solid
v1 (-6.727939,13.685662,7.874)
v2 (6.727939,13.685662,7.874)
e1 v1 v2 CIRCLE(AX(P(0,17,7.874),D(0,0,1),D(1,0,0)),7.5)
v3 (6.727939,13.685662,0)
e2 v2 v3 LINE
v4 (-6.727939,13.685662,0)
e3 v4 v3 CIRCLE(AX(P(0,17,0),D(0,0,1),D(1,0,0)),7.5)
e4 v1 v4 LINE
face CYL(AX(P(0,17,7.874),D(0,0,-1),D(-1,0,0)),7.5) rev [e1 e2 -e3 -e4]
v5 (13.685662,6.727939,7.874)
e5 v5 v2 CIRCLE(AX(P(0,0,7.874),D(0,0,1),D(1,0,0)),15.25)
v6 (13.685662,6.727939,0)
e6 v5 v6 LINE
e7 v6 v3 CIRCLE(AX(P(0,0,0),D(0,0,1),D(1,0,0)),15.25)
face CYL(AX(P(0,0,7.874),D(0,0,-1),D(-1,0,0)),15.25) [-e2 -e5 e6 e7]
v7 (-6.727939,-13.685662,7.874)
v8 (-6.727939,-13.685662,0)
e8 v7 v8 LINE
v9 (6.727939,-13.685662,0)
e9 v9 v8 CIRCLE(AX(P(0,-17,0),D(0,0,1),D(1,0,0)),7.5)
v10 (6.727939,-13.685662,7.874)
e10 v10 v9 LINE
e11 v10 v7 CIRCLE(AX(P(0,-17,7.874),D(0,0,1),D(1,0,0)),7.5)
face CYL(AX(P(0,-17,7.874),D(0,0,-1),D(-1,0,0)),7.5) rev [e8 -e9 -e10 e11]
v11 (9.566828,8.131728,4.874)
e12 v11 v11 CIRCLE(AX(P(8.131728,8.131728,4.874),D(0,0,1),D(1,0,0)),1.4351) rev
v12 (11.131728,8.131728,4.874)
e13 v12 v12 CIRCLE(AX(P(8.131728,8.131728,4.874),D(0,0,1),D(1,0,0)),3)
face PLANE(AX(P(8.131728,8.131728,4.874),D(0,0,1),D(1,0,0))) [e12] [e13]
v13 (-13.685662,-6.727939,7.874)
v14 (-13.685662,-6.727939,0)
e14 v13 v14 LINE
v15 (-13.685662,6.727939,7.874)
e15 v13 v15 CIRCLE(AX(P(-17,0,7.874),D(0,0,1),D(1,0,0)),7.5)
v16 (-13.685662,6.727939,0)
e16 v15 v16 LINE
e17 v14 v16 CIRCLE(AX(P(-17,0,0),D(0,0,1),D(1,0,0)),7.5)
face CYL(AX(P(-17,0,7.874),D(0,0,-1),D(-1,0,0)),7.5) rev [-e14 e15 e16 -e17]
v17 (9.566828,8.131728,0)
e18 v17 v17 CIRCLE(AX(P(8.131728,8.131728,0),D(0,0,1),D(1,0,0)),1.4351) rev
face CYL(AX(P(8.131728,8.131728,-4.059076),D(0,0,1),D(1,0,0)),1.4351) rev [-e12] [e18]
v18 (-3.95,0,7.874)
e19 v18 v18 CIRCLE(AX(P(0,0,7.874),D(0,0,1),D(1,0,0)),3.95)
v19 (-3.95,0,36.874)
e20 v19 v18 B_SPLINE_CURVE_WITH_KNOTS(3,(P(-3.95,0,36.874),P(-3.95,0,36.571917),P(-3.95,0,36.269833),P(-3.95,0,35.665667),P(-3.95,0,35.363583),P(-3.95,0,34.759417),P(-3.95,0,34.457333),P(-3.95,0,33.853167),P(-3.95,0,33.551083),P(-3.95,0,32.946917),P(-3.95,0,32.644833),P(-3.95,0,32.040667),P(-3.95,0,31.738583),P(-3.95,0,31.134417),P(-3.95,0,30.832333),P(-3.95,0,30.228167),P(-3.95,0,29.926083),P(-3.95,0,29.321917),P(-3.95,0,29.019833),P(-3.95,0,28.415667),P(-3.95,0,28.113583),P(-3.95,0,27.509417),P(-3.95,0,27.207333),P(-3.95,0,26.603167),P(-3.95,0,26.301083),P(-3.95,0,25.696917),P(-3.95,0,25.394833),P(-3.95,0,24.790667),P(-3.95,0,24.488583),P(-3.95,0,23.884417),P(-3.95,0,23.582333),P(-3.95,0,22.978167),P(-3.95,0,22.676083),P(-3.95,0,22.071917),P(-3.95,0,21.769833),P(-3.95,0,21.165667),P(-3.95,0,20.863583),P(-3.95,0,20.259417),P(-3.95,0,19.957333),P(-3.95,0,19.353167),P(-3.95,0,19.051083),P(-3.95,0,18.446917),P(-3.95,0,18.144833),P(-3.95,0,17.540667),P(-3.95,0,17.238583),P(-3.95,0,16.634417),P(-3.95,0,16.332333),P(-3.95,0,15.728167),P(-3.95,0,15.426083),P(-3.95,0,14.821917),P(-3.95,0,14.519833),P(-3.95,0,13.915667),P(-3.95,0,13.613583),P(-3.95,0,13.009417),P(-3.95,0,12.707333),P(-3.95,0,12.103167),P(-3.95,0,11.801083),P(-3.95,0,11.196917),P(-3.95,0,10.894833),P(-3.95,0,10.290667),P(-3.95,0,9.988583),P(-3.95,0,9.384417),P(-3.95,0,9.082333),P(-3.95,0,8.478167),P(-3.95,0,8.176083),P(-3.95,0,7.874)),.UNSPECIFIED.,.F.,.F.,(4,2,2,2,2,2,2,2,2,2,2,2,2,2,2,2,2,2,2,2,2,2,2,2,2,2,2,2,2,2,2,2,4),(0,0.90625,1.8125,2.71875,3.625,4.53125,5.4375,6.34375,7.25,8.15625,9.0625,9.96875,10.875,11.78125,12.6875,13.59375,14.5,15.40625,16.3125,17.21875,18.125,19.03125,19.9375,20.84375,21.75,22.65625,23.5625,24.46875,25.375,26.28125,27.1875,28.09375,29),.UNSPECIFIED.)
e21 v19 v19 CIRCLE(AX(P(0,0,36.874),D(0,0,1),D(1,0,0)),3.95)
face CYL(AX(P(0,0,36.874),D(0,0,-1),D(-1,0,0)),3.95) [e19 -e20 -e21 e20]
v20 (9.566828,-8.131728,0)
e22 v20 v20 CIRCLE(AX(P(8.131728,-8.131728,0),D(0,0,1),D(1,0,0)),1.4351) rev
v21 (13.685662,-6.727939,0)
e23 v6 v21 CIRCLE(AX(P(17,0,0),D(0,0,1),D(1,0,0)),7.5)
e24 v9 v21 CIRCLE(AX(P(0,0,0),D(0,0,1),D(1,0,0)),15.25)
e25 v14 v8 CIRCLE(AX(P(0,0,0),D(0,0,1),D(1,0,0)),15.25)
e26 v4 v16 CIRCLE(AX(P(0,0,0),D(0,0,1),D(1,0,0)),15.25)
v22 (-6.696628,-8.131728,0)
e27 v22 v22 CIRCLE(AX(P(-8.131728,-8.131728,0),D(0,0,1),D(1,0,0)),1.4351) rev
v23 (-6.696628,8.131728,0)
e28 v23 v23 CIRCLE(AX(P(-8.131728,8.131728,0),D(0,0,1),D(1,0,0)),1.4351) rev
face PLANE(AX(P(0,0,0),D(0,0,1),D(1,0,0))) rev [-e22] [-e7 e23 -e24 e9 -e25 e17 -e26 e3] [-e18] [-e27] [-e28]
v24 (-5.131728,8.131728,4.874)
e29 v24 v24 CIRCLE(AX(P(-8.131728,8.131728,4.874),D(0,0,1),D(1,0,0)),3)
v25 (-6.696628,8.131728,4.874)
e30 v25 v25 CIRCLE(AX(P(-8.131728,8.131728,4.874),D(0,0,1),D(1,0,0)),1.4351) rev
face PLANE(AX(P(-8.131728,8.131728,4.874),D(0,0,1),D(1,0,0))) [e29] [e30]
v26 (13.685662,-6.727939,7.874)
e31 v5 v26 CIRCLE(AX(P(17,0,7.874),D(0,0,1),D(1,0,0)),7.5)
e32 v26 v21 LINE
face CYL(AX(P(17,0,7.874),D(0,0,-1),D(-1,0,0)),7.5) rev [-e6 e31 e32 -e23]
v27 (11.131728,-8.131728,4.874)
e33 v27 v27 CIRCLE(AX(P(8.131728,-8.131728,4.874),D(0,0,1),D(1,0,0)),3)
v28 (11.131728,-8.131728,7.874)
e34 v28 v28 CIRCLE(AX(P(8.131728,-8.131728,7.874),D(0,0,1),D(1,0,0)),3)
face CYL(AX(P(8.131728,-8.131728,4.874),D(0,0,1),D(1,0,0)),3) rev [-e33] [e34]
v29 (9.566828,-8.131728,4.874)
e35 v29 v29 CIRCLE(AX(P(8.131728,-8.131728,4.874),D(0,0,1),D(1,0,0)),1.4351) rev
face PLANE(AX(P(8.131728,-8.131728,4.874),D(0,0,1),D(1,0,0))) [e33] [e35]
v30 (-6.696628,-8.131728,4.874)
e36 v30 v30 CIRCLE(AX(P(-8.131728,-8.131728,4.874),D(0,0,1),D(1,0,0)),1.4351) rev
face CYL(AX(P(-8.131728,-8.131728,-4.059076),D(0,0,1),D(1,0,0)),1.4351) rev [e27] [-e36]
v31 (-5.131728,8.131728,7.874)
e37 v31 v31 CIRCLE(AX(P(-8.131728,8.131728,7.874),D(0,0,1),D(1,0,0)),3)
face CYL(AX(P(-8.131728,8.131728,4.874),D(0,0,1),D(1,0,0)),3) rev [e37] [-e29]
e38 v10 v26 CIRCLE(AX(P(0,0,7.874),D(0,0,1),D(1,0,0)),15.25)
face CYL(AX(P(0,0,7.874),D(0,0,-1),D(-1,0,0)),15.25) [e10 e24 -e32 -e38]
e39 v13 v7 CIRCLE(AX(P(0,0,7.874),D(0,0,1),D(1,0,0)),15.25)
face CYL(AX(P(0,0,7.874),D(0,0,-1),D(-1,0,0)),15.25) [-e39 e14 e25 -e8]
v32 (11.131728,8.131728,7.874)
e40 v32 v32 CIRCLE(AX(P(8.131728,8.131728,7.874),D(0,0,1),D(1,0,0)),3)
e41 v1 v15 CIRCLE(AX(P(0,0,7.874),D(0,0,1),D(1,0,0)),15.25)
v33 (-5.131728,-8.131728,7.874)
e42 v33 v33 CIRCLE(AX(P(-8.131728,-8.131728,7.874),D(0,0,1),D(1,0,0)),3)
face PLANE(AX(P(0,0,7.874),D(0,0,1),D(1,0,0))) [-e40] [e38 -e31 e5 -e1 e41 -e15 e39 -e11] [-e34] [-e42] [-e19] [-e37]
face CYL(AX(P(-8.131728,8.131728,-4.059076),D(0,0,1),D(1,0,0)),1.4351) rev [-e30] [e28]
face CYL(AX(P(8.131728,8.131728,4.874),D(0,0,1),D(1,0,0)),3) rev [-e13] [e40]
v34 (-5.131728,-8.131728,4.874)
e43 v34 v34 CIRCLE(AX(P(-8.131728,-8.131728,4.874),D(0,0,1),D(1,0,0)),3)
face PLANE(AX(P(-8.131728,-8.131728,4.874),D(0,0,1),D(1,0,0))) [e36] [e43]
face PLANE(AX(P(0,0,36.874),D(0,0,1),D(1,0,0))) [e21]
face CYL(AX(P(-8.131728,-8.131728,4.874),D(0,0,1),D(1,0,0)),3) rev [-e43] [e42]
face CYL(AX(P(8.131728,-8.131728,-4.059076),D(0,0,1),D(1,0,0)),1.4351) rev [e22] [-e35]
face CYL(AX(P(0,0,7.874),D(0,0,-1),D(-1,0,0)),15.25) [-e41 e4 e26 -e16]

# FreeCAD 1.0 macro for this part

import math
import FreeCAD as App
import Part
import Sketcher
from FreeCAD import Vector

doc = App.newDocument("Part")
params = doc.addObject("Spreadsheet::Sheet", "Params")
for row, (alias, value) in enumerate([
    ("sketch1_radius", "7.5 mm"),
    ("sketch1_radius2", "15.25 mm"),
    ("pad1_length", "7.874 mm"),
    ("pocket1_length", "7.874 mm"),
    ("sketch3_diameter", "6 mm"),
    ("pocket2_length", "3 mm"),
    ("sketch4_diameter", "7.9 mm"),
    ("pad2_length", "29 mm"),
], start=1):
    params.set(f"A{row}", alias)
    params.set(f"B{row}", "=" + value)
    params.setAlias(f"B{row}", alias)

body = doc.addObject("PartDesign::Body", "Body")

# Sketch on XY plane
sketch1 = doc.addObject("Sketcher::SketchObject", "Sketch")
body.addObject(sketch1)
sketch1.AttachmentSupport = (doc.XY_Plane, [""])
sketch1.MapMode = "FlatFace"
sketch1.addGeometry(Part.ArcOfCircle(Part.Circle(Vector(0, 17, 0), Vector(0, 0, 1), 7), math.radians(-154), math.radians(-26)), False)
sketch1.addGeometry(Part.ArcOfCircle(Part.Circle(Vector(0, 0, 0), Vector(0, 0, 1), 15), math.radians(116), math.radians(154)), False)
sketch1.addGeometry(Part.ArcOfCircle(Part.Circle(Vector(-17, 0, 0), Vector(0, 0, 1), 7), math.radians(-64), math.radians(64)), False)
sketch1.addGeometry(Part.ArcOfCircle(Part.Circle(Vector(0, 0, 0), Vector(0, 0, 1), 15), math.radians(-154), math.radians(-116)), False)
sketch1.addGeometry(Part.ArcOfCircle(Part.Circle(Vector(0, -17, 0), Vector(0, 0, 1), 7), math.radians(26), math.radians(154)), False)
sketch1.addGeometry(Part.ArcOfCircle(Part.Circle(Vector(0, 0, 0), Vector(0, 0, 1), 15), math.radians(-64), math.radians(-26)), False)
sketch1.addGeometry(Part.ArcOfCircle(Part.Circle(Vector(17, 0, 0), Vector(0, 0, 1), 7), math.radians(116), math.radians(244)), False)
sketch1.addGeometry(Part.ArcOfCircle(Part.Circle(Vector(0, 0, 0), Vector(0, 0, 1), 15), math.radians(26), math.radians(64)), False)
sketch1.addConstraint(Sketcher.Constraint("Coincident", 0, 1, 1, 1))
sketch1.addConstraint(Sketcher.Constraint("Coincident", 1, 2, 2, 2))
sketch1.addConstraint(Sketcher.Constraint("Coincident", 2, 1, 3, 1))
sketch1.addConstraint(Sketcher.Constraint("Coincident", 3, 2, 4, 2))
sketch1.addConstraint(Sketcher.Constraint("Coincident", 4, 1, 5, 1))
sketch1.addConstraint(Sketcher.Constraint("Coincident", 5, 2, 6, 2))
sketch1.addConstraint(Sketcher.Constraint("Coincident", 6, 1, 7, 1))
sketch1.addConstraint(Sketcher.Constraint("Coincident", 7, 2, 0, 2))
sketch1.addConstraint(Sketcher.Constraint("Coincident", 1, 3, -1, 1))
sketch1.addConstraint(Sketcher.Constraint("Coincident", 3, 3, -1, 1))
sketch1.addConstraint(Sketcher.Constraint("Coincident", 5, 3, -1, 1))
sketch1.addConstraint(Sketcher.Constraint("Coincident", 7, 3, -1, 1))
sketch1.addConstraint(Sketcher.Constraint("Equal", 0, 2))
sketch1.addConstraint(Sketcher.Constraint("Equal", 1, 3))
sketch1.addConstraint(Sketcher.Constraint("Equal", 2, 4))
sketch1.addConstraint(Sketcher.Constraint("Equal", 3, 5))
sketch1.addConstraint(Sketcher.Constraint("Equal", 4, 6))
sketch1.addConstraint(Sketcher.Constraint("Equal", 5, 7))
sketch1.addConstraint(Sketcher.Constraint("Symmetric", 0, 3, 4, 3, -1, 1))
sketch1.addConstraint(Sketcher.Constraint("Symmetric", 2, 3, 6, 3, -1, 1))
sketch1.addConstraint(Sketcher.Constraint("PointOnObject", 0, 3, -2))
sketch1.addConstraint(Sketcher.Constraint("PointOnObject", 2, 3, -1))
sketch1.addConstraint(Sketcher.Constraint("Radius", 0, 7.5))
sketch1.addConstraint(Sketcher.Constraint("Radius", 1, 15.25))
sketch1.addConstraint(Sketcher.Constraint("DistanceY", -1, 1, 0, 3, 17.0))
sketch1.addConstraint(Sketcher.Constraint("DistanceX", 2, 3, -1, 1, 17.0))
sketch1.setExpression("Constraints[22]", "Params.sketch1_radius")
sketch1.setExpression("Constraints[23]", "Params.sketch1_radius2")
pad1 = doc.addObject("PartDesign::Pad", "Pad")
body.addObject(pad1)
pad1.Profile = sketch1
pad1.setExpression("Length", "Params.pad1_length")

# Sketch on XY plane
sketch2 = doc.addObject("Sketcher::SketchObject", "Sketch001")
body.addObject(sketch2)
sketch2.AttachmentSupport = (doc.XY_Plane, [""])
sketch2.MapMode = "FlatFace"
sketch2.AttachmentOffset = App.Placement(Vector(0, 0, 7.874), App.Rotation())
sketch2.addGeometry(Part.Circle(Vector(-8.1, 8.1, 0), Vector(0, 0, 1), 1.4), False)
sketch2.addGeometry(Part.Circle(Vector(8.1, -8.1, 0), Vector(0, 0, 1), 1.4), False)
sketch2.addGeometry(Part.Circle(Vector(-8.1, -8.1, 0), Vector(0, 0, 1), 1.4), False)
sketch2.addGeometry(Part.Circle(Vector(8.1, 8.1, 0), Vector(0, 0, 1), 1.4), False)
sketch2.addConstraint(Sketcher.Constraint("Equal", 0, 1))
sketch2.addConstraint(Sketcher.Constraint("Equal", 1, 2))
sketch2.addConstraint(Sketcher.Constraint("Equal", 2, 3))
sketch2.addConstraint(Sketcher.Constraint("Symmetric", 0, 3, 1, 3, -1, 1))
sketch2.addConstraint(Sketcher.Constraint("Symmetric", 2, 3, 3, 3, -1, 1))
sketch2.addConstraint(Sketcher.Constraint("Symmetric", 1, 3, 2, 3, -2))
sketch2.addConstraint(Sketcher.Constraint("Diameter", 0, 2.8702))
sketch2.addConstraint(Sketcher.Constraint("DistanceX", 0, 3, -1, 1, 8.131728))
sketch2.addConstraint(Sketcher.Constraint("DistanceY", -1, 1, 0, 3, 8.131728))
pocket1 = doc.addObject("PartDesign::Pocket", "Pocket")
body.addObject(pocket1)
pocket1.Profile = sketch2
pocket1.setExpression("Length", "Params.pocket1_length")

# Sketch on XY plane
sketch3 = doc.addObject("Sketcher::SketchObject", "Sketch002")
body.addObject(sketch3)
sketch3.AttachmentSupport = (doc.XY_Plane, [""])
sketch3.MapMode = "FlatFace"
sketch3.AttachmentOffset = App.Placement(Vector(0, 0, 7.874), App.Rotation())
sketch3.addGeometry(Part.Circle(Vector(-8.1, 8.1, 0), Vector(0, 0, 1), 3), False)
sketch3.addGeometry(Part.Circle(Vector(-8.1, -8.1, 0), Vector(0, 0, 1), 3), False)
sketch3.addGeometry(Part.Circle(Vector(8.1, -8.1, 0), Vector(0, 0, 1), 3), False)
sketch3.addGeometry(Part.Circle(Vector(8.1, 8.1, 0), Vector(0, 0, 1), 3), False)
sketch3.addConstraint(Sketcher.Constraint("Equal", 0, 1))
sketch3.addConstraint(Sketcher.Constraint("Equal", 1, 2))
sketch3.addConstraint(Sketcher.Constraint("Equal", 2, 3))
sketch3.addConstraint(Sketcher.Constraint("Symmetric", 0, 3, 2, 3, -1, 1))
sketch3.addConstraint(Sketcher.Constraint("Symmetric", 1, 3, 3, 3, -1, 1))
sketch3.addConstraint(Sketcher.Constraint("Symmetric", 1, 3, 2, 3, -2))
sketch3.addConstraint(Sketcher.Constraint("Diameter", 0, 6.0))
sketch3.addConstraint(Sketcher.Constraint("DistanceX", 0, 3, -1, 1, 8.131728))
sketch3.addConstraint(Sketcher.Constraint("DistanceY", -1, 1, 0, 3, 8.131728))
sketch3.setExpression("Constraints[6]", "Params.sketch3_diameter")
pocket2 = doc.addObject("PartDesign::Pocket", "Pocket001")
body.addObject(pocket2)
pocket2.Profile = sketch3
pocket2.setExpression("Length", "Params.pocket2_length")

# Sketch on XY plane
sketch4 = doc.addObject("Sketcher::SketchObject", "Sketch003")
body.addObject(sketch4)
sketch4.AttachmentSupport = (doc.XY_Plane, [""])
sketch4.MapMode = "FlatFace"
sketch4.AttachmentOffset = App.Placement(Vector(0, 0, 7.874), App.Rotation())
sketch4.addGeometry(Part.Circle(Vector(0, 0, 0), Vector(0, 0, 1), 4), False)
sketch4.addConstraint(Sketcher.Constraint("Coincident", 0, 3, -1, 1))
sketch4.addConstraint(Sketcher.Constraint("Diameter", 0, 7.9))
sketch4.setExpression("Constraints[1]", "Params.sketch4_diameter")
pad2 = doc.addObject("PartDesign::Pad", "Pad001")
body.addObject(pad2)
pad2.Profile = sketch4
pad2.setExpression("Length", "Params.pad2_length")

doc.recompute()
